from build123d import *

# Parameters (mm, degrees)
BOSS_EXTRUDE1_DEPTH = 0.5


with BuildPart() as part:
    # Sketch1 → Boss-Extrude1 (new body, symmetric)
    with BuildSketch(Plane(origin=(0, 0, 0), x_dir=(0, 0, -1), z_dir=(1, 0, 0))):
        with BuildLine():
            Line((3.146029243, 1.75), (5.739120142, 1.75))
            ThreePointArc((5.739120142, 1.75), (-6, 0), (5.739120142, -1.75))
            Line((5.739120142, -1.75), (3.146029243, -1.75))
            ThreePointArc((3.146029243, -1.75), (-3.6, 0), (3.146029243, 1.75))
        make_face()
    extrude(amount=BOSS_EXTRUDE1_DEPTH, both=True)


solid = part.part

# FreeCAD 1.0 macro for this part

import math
import FreeCAD as App
import Part
import Sketcher
from FreeCAD import Vector

doc = App.newDocument("Part")
params = doc.addObject("Spreadsheet::Sheet", "Params")
for row, (alias, value) in enumerate([
    ("sketch1_radius", "6 mm"),
    ("sketch1_radius2", "3.6 mm"),
    ("pad1_length", "1 mm"),
], start=1):
    params.set(f"A{row}", alias)
    params.set(f"B{row}", "=" + value)
    params.setAlias(f"B{row}", alias)

body = doc.addObject("PartDesign::Body", "Body")

sketch1 = body.newObject("Sketcher::SketchObject", "Sketch")
sketch1.AttachmentSupport = (doc.getObject("YZ_Plane"), [""])
sketch1.MapMode = "FlatFace"
sketch1.addGeometry([
    Part.LineSegment(Vector(1.75, -3.146029, 0), Vector(1.75, -5.73912, 0)),
    Part.ArcOfCircle(Part.Circle(Vector(0, 0, 0), Vector(0, 0, 1), 6), math.radians(-73.042237), math.radians(253.042237)),
    Part.LineSegment(Vector(-1.75, -5.73912, 0), Vector(-1.75, -3.146029, 0)),
    Part.ArcOfCircle(Part.Circle(Vector(0, 0, 0), Vector(0, 0, 1), 3.6), math.radians(-60.914705), math.radians(240.914705)),
], False)
sketch1.addConstraint([
    Sketcher.Constraint("Coincident", 0, 2, 1, 1),
    Sketcher.Constraint("Coincident", 1, 2, 2, 1),
    Sketcher.Constraint("Coincident", 2, 2, 3, 2),
    Sketcher.Constraint("Coincident", 3, 1, 0, 1),
    Sketcher.Constraint("Vertical", 0),
    Sketcher.Constraint("Vertical", 2),
    Sketcher.Constraint("Coincident", 1, 3, -1, 1),
    Sketcher.Constraint("Coincident", 3, 3, -1, 1),
    Sketcher.Constraint("Horizontal", 0, 2, 1, 2),
    Sketcher.Constraint("Radius", 1, 6.0),
    Sketcher.Constraint("Radius", 3, 3.6),
    Sketcher.Constraint("DistanceX", 1, 2, 0, 2, 3.5),
])
sketch1.setExpression("Constraints[9]", "Params.sketch1_radius")
sketch1.setExpression("Constraints[10]", "Params.sketch1_radius2")
pad1 = body.newObject("PartDesign::Pad", "Pad")
pad1.Profile = sketch1
pad1.setExpression("Length", "Params.pad1_length")
pad1.Midplane = True

doc.recompute()
